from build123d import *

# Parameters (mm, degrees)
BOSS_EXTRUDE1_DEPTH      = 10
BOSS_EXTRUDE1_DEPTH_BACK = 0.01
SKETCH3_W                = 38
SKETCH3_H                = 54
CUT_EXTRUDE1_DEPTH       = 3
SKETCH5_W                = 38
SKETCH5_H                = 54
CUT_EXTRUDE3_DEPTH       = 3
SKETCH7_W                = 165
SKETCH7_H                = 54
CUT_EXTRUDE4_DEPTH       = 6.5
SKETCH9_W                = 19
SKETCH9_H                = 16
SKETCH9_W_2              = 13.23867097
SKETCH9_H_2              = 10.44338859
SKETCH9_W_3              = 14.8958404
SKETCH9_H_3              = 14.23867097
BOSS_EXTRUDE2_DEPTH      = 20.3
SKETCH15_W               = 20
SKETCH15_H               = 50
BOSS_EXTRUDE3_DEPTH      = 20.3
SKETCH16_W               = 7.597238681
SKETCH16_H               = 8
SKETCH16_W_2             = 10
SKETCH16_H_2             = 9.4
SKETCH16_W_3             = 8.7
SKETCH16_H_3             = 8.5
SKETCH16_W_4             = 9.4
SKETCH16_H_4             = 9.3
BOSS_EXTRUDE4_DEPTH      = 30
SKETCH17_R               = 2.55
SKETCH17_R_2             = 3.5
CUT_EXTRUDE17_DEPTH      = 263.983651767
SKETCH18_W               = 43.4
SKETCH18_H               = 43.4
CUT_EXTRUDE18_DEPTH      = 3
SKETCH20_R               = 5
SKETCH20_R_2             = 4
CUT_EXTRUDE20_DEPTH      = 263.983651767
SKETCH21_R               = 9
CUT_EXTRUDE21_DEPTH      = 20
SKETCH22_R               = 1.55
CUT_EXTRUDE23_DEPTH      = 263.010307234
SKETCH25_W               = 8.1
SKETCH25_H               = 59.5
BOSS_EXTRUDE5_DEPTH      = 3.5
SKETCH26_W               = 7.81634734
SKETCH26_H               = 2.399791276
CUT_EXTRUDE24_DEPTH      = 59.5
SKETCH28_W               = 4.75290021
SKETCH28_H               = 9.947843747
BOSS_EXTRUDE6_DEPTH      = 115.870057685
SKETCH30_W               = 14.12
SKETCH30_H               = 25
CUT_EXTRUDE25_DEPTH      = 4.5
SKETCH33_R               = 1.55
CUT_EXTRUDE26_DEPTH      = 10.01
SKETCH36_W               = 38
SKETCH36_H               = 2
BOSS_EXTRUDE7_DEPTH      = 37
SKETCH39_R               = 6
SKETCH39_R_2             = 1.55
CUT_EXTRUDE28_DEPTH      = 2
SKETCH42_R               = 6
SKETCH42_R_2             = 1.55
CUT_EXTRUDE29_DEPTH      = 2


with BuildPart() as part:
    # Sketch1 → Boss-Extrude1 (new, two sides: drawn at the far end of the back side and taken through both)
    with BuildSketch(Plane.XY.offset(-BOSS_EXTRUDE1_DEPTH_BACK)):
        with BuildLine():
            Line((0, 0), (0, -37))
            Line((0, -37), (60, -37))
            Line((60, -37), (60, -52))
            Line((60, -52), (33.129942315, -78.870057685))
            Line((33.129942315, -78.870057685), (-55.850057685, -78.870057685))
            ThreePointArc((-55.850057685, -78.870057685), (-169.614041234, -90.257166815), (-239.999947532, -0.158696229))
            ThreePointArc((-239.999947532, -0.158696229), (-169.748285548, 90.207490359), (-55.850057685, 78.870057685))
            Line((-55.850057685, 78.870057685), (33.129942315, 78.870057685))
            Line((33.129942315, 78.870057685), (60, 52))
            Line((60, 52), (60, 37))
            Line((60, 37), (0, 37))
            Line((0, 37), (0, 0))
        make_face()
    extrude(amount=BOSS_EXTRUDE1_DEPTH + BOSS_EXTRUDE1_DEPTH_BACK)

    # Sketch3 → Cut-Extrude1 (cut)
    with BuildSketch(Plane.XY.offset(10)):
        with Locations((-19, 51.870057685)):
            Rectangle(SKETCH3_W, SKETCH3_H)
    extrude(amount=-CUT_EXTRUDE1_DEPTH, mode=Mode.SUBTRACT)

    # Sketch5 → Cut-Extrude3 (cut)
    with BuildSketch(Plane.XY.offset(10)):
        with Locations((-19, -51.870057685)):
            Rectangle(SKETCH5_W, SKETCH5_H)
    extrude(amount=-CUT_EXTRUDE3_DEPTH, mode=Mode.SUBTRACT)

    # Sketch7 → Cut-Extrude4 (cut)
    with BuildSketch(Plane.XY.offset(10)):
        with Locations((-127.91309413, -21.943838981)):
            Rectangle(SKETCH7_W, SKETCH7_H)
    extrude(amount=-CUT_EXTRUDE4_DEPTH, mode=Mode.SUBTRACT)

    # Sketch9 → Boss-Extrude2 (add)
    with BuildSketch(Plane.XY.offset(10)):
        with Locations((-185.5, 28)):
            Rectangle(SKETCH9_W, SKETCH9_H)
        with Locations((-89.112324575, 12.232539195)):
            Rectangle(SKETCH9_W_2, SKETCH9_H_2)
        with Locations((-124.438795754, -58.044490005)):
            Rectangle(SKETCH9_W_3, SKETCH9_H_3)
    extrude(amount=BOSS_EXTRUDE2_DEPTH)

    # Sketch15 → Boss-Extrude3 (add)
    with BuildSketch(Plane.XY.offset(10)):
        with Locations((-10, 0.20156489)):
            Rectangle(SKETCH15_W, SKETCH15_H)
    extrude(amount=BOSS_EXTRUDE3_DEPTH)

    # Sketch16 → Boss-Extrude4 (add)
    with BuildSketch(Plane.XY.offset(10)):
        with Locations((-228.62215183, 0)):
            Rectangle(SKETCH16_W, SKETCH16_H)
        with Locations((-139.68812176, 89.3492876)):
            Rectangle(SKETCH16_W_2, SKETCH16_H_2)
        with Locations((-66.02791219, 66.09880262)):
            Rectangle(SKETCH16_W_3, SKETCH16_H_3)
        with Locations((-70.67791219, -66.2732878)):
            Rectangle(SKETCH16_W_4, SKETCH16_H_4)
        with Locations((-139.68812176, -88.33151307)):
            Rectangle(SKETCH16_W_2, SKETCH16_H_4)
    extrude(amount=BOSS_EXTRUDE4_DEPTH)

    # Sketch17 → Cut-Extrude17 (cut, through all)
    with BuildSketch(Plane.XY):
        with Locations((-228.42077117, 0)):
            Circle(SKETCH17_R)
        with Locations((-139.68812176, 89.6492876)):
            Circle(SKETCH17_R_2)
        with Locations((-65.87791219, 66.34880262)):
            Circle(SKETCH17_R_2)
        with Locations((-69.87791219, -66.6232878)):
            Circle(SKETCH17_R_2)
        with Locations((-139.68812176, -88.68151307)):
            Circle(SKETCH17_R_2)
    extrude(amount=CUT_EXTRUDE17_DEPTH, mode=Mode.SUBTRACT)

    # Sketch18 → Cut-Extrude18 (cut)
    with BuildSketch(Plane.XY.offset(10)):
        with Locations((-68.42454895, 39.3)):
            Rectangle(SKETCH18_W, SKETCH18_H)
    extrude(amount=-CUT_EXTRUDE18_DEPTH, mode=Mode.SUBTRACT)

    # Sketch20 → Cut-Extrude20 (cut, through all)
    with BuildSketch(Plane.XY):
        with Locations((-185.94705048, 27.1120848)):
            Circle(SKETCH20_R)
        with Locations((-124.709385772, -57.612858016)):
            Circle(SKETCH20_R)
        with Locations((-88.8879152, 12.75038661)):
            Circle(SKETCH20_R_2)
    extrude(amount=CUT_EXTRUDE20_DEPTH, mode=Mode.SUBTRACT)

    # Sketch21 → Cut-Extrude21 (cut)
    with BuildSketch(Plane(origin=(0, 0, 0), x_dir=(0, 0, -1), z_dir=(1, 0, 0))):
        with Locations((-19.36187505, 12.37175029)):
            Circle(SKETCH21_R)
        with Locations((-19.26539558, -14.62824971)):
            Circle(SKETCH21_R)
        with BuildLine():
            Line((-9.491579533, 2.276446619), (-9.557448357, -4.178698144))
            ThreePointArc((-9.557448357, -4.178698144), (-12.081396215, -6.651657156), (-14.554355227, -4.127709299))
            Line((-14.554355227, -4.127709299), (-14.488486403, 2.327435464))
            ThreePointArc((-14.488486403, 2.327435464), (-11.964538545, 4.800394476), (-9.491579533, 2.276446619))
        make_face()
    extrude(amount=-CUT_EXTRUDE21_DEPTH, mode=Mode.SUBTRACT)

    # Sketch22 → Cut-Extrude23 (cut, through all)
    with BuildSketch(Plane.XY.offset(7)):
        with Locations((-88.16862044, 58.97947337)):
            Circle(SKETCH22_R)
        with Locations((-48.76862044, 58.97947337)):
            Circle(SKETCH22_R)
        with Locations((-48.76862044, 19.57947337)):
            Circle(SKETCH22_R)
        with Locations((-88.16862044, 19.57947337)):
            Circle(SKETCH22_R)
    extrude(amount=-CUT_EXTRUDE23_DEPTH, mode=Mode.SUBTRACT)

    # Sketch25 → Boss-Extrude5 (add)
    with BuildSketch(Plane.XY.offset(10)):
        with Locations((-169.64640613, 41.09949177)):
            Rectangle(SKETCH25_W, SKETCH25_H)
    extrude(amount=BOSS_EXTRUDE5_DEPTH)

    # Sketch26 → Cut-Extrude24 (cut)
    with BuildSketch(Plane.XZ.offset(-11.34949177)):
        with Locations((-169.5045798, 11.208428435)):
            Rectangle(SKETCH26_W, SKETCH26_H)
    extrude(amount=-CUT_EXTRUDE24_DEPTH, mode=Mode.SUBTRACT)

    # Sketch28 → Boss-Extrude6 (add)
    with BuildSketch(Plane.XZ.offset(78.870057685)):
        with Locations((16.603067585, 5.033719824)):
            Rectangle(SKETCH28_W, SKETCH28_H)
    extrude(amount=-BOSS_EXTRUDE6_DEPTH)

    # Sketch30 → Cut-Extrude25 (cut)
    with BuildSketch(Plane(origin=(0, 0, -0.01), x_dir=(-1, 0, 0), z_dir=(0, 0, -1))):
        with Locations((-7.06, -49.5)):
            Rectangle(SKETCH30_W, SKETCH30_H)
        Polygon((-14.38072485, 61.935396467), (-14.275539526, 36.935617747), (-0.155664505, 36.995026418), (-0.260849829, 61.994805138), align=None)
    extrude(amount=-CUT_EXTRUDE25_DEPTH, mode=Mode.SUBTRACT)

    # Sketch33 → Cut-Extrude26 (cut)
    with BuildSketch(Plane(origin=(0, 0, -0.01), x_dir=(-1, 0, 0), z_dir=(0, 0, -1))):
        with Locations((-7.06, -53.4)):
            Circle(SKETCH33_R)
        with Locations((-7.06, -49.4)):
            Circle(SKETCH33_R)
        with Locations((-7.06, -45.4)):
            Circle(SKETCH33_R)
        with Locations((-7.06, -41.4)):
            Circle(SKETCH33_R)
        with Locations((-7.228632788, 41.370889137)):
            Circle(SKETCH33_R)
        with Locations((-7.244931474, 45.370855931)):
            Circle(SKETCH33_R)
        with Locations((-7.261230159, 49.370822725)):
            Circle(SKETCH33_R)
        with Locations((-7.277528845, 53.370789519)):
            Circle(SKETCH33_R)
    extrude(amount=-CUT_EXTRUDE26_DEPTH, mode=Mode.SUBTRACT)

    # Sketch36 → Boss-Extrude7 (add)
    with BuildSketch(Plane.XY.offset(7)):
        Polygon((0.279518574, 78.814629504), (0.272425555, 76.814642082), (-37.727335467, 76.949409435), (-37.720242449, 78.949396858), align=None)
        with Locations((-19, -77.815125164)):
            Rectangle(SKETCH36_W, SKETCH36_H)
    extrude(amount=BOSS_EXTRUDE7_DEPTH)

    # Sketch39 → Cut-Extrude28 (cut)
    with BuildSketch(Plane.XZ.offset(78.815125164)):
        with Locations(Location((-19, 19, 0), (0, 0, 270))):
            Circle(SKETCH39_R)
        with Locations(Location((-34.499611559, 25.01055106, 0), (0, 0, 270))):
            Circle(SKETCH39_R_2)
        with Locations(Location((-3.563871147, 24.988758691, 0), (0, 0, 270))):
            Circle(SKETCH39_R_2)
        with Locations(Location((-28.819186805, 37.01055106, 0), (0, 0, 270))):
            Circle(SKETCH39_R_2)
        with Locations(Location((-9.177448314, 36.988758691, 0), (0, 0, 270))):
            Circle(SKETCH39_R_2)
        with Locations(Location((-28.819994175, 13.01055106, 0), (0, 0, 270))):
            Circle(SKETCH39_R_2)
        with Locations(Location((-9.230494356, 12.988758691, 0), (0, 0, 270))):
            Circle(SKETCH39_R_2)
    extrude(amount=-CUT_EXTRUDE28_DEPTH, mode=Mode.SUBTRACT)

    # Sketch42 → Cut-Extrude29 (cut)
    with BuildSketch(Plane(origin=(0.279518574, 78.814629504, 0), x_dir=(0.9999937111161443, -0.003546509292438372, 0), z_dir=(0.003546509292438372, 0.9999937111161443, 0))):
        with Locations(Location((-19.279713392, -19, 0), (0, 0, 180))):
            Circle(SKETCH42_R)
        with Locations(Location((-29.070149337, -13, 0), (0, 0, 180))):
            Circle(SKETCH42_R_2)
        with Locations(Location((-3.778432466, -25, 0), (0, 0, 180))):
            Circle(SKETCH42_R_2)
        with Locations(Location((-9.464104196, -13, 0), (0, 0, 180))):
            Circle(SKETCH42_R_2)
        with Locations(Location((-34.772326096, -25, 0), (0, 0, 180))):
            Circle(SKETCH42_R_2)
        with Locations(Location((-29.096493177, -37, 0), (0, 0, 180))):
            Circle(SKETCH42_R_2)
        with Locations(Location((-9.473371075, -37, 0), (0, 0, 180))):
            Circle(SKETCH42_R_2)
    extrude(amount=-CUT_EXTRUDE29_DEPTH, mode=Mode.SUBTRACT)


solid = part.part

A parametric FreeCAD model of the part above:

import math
import FreeCAD as App
import Part
import Sketcher
from FreeCAD import Vector


def add_polygon(sketch, points):
    """Adds a closed chain of lines whose ends are joined by coincident constraints."""
    first, n = sketch.GeometryCount, len(points)
    for a, b in zip(points, points[1:] + points[:1]):
        sketch.addGeometry(Part.LineSegment(App.Vector(*a, 0), App.Vector(*b, 0)), False)
    for i in range(n):
        sketch.addConstraint(Sketcher.Constraint("Coincident", first + i, 2, first + (i + 1) % n, 1))

doc = App.newDocument("Part")
body = doc.addObject("PartDesign::Body", "Body")

sketch1 = body.newObject("Sketcher::SketchObject", "Sketch")
sketch1.AttachmentSupport = (doc.getObject("XY_Plane"), [""])
sketch1.MapMode = "FlatFace"
sketch1.addGeometry([
    Part.LineSegment(Vector(60, -37, 0), Vector(0, -37, 0)),
    Part.LineSegment(Vector(0, -37, 0), Vector(0, 37, 0)),
    Part.LineSegment(Vector(0, 37, 0), Vector(60, 37, 0)),
    Part.LineSegment(Vector(60, 37, 0), Vector(60, 52, 0)),
    Part.LineSegment(Vector(60, 52, 0), Vector(33, 79, 0)),
    Part.LineSegment(Vector(33, 79, 0), Vector(-56, 79, 0)),
    Part.ArcOfCircle(Part.Circle(Vector(-123, -19, 0), Vector(0, 0, 1), 118), math.radians(55), math.radians(171)),
    Part.ArcOfCircle(Part.Circle(Vector(-123, 19, 0), Vector(0, 0, 1), 118), math.radians(-171), math.radians(-55)),
    Part.LineSegment(Vector(-56, -79, 0), Vector(33, -79, 0)),
    Part.LineSegment(Vector(33, -79, 0), Vector(60, -52, 0)),
    Part.LineSegment(Vector(60, -52, 0), Vector(60, -37, 0)),
], False)
sketch1.addConstraint([
    Sketcher.Constraint("Coincident", 0, 2, 1, 1),
    Sketcher.Constraint("Coincident", 1, 2, 2, 1),
    Sketcher.Constraint("Coincident", 2, 2, 3, 1),
    Sketcher.Constraint("Coincident", 3, 2, 4, 1),
    Sketcher.Constraint("Coincident", 4, 2, 5, 1),
    Sketcher.Constraint("Coincident", 5, 2, 6, 1),
    Sketcher.Constraint("Coincident", 6, 2, 7, 1),
    Sketcher.Constraint("Coincident", 7, 2, 8, 1),
    Sketcher.Constraint("Coincident", 8, 2, 9, 1),
    Sketcher.Constraint("Coincident", 9, 2, 10, 1),
    Sketcher.Constraint("Coincident", 10, 2, 0, 1),
    Sketcher.Constraint("Horizontal", 0),
    Sketcher.Constraint("Vertical", 1),
    Sketcher.Constraint("Horizontal", 2),
    Sketcher.Constraint("Vertical", 3),
    Sketcher.Constraint("Horizontal", 5),
    Sketcher.Constraint("Horizontal", 8),
    Sketcher.Constraint("Vertical", 10),
    Sketcher.Constraint("Symmetric", 0, 2, 1, 2, -1, 1),
    Sketcher.Constraint("Symmetric", 5, 2, 7, 2, -1),
    Sketcher.Constraint("Symmetric", 3, 2, 9, 2, -1),
    Sketcher.Constraint("Perpendicular", 4, 9),
    Sketcher.Constraint("Vertical", 6, 3, 7, 3),
    Sketcher.Constraint("Vertical", 4, 2, 8, 2),
    Sketcher.Constraint("DistanceX", 0, 2, 0, 1, 60.0),
    Sketcher.Constraint("DistanceY", 1, 1, 1, 2, 74.0),
    Sketcher.Constraint("DistanceY", 3, 1, 3, 2, 15.0),
    Sketcher.Constraint("Distance", 4, 38.0),
    Sketcher.Constraint("DistanceX", 5, 2, 5, 1, 88.98),
    Sketcher.Constraint("Radius", 6, 118.378204),
    Sketcher.Constraint("Radius", 7, 118.439873),
    Sketcher.Constraint("DistanceX", 6, 2, 6, 3, 116.936702),
])
pad1 = body.newObject("PartDesign::Pad", "Pad")
pad1.Profile = sketch1
pad1.Type = "TwoLengths"
pad1.Length = 10
pad1.Length2 = 0.01

sketch2 = body.newObject("Sketcher::SketchObject", "Sketch001")
sketch2.AttachmentSupport = (doc.getObject("XY_Plane"), [""])
sketch2.MapMode = "FlatFace"
sketch2.AttachmentOffset = App.Placement(Vector(0, 0, 10), App.Rotation())
add_polygon(sketch2, [(-38, 79), (-38, 25), (0, 25), (0, 79)])
sketch2.addConstraint([
    Sketcher.Constraint("Vertical", 0),
    Sketcher.Constraint("Horizontal", 1),
    Sketcher.Constraint("Vertical", 2),
    Sketcher.Constraint("Horizontal", 3),
    Sketcher.Constraint("PointOnObject", 1, 2, -2),
    Sketcher.Constraint("DistanceX", 1, 1, 1, 2, 38.0),
    Sketcher.Constraint("DistanceY", 0, 2, 0, 1, 54.0),
    Sketcher.Constraint("DistanceY", -1, 1, 0, 2, 24.870058),
])
pocket1 = body.newObject("PartDesign::Pocket", "Pocket")
pocket1.Profile = sketch2
pocket1.Length = 3

sketch3 = body.newObject("Sketcher::SketchObject", "Sketch002")
sketch3.AttachmentSupport = (doc.getObject("XY_Plane"), [""])
sketch3.MapMode = "FlatFace"
sketch3.AttachmentOffset = App.Placement(Vector(0, 0, 10), App.Rotation())
add_polygon(sketch3, [(-38, -25), (-38, -79), (0, -79), (0, -25)])
sketch3.addConstraint([
    Sketcher.Constraint("Vertical", 0),
    Sketcher.Constraint("Horizontal", 1),
    Sketcher.Constraint("Vertical", 2),
    Sketcher.Constraint("Horizontal", 3),
    Sketcher.Constraint("PointOnObject", 1, 2, -2),
    Sketcher.Constraint("DistanceX", 1, 1, 1, 2, 38.0),
    Sketcher.Constraint("DistanceY", 0, 2, 0, 1, 54.0),
    Sketcher.Constraint("DistanceY", 0, 2, -1, 1, 78.870058),
])
pocket2 = body.newObject("PartDesign::Pocket", "Pocket001")
pocket2.Profile = sketch3
pocket2.Length = 3

sketch4 = body.newObject("Sketcher::SketchObject", "Sketch003")
sketch4.AttachmentSupport = (doc.getObject("XY_Plane"), [""])
sketch4.MapMode = "FlatFace"
sketch4.AttachmentOffset = App.Placement(Vector(0, 0, 10), App.Rotation())
add_polygon(sketch4, [(-210, 5), (-210, -49), (-45, -49), (-45, 5)])
sketch4.addConstraint([
    Sketcher.Constraint("Vertical", 0),
    Sketcher.Constraint("Horizontal", 1),
    Sketcher.Constraint("Vertical", 2),
    Sketcher.Constraint("Horizontal", 3),
    Sketcher.Constraint("DistanceX", 1, 1, 1, 2, 165.0),
    Sketcher.Constraint("DistanceY", 0, 2, 0, 1, 54.0),
    Sketcher.Constraint("DistanceY", 0, 2, -1, 1, 48.943839),
    Sketcher.Constraint("DistanceX", 0, 2, -1, 1, 210.413094),
])
pocket3 = body.newObject("PartDesign::Pocket", "Pocket002")
pocket3.Profile = sketch4
pocket3.Length = 6.5

sketch5 = body.newObject("Sketcher::SketchObject", "Sketch004")
sketch5.AttachmentSupport = (doc.getObject("XY_Plane"), [""])
sketch5.MapMode = "FlatFace"
sketch5.AttachmentOffset = App.Placement(Vector(0, 0, 10), App.Rotation())
add_polygon(sketch5, [(-195, 36), (-195, 20), (-176, 20), (-176, 36)])
add_polygon(sketch5, [(-96, 17), (-96, 7), (-82, 7), (-82, 17)])
add_polygon(sketch5, [(-132, -51), (-132, -65), (-117, -65), (-117, -51)])
sketch5.addConstraint([
    Sketcher.Constraint("Vertical", 0),
    Sketcher.Constraint("Horizontal", 1),
    Sketcher.Constraint("Vertical", 2),
    Sketcher.Constraint("Horizontal", 3),
    Sketcher.Constraint("Vertical", 4),
    Sketcher.Constraint("Horizontal", 5),
    Sketcher.Constraint("Vertical", 6),
    Sketcher.Constraint("Horizontal", 7),
    Sketcher.Constraint("Vertical", 8),
    Sketcher.Constraint("Horizontal", 9),
    Sketcher.Constraint("Vertical", 10),
    Sketcher.Constraint("Horizontal", 11),
    Sketcher.Constraint("DistanceX", 1, 1, 1, 2, 19.0),
    Sketcher.Constraint("DistanceY", 0, 2, 0, 1, 16.0),
    Sketcher.Constraint("DistanceX", 0, 2, -1, 1, 195.0),
    Sketcher.Constraint("DistanceY", -1, 1, 0, 2, 20.0),
    Sketcher.Constraint("DistanceY", 10, 2, 4, 2, 57.935999),
    Sketcher.Constraint("DistanceX", 5, 1, 5, 2, 13.238671),
    Sketcher.Constraint("DistanceX", 9, 1, 9, 2, 14.89584),
    Sketcher.Constraint("DistanceY", 4, 2, 4, 1, 10.443389),
    Sketcher.Constraint("DistanceY", 8, 2, 8, 1, 14.238671),
    Sketcher.Constraint("DistanceX", 4, 2, -1, 1, 95.73166),
    Sketcher.Constraint("DistanceY", -1, 1, 4, 2, 7.010845),
    Sketcher.Constraint("DistanceX", 8, 2, -1, 1, 131.886716),
])
pad2 = body.newObject("PartDesign::Pad", "Pad001")
pad2.Profile = sketch5
pad2.Length = 20.3

sketch6 = body.newObject("Sketcher::SketchObject", "Sketch005")
sketch6.AttachmentSupport = (doc.getObject("XY_Plane"), [""])
sketch6.MapMode = "FlatFace"
sketch6.AttachmentOffset = App.Placement(Vector(0, 0, 10), App.Rotation())
add_polygon(sketch6, [(-20, 25), (-20, -25), (0, -25), (0, 25)])
sketch6.addConstraint([
    Sketcher.Constraint("Vertical", 0),
    Sketcher.Constraint("Horizontal", 1),
    Sketcher.Constraint("Vertical", 2),
    Sketcher.Constraint("Horizontal", 3),
    Sketcher.Constraint("PointOnObject", 1, 2, -2),
    Sketcher.Constraint("DistanceX", 1, 1, 1, 2, 20.0),
    Sketcher.Constraint("DistanceY", 0, 2, 0, 1, 50.0),
    Sketcher.Constraint("DistanceY", 0, 2, -1, 1, 24.798435),
])
pad3 = body.newObject("PartDesign::Pad", "Pad002")
pad3.Profile = sketch6
pad3.Length = 20.3

sketch7 = body.newObject("Sketcher::SketchObject", "Sketch006")
sketch7.AttachmentSupport = (doc.getObject("XY_Plane"), [""])
sketch7.MapMode = "FlatFace"
sketch7.AttachmentOffset = App.Placement(Vector(0, 0, 10), App.Rotation())
add_polygon(sketch7, [(-232, 4), (-232, -4), (-225, -4), (-225, 4)])
add_polygon(sketch7, [(-145, 94), (-145, 85), (-135, 85), (-135, 94)])
add_polygon(sketch7, [(-70, 70), (-70, 62), (-62, 62), (-62, 70)])
add_polygon(sketch7, [(-75, -62), (-75, -71), (-66, -71), (-66, -62)])
add_polygon(sketch7, [(-145, -84), (-145, -93), (-135, -93), (-135, -84)])
sketch7.addConstraint([
    Sketcher.Constraint("Vertical", 0),
    Sketcher.Constraint("Horizontal", 1),
    Sketcher.Constraint("Vertical", 2),
    Sketcher.Constraint("Horizontal", 3),
    Sketcher.Constraint("Vertical", 4),
    Sketcher.Constraint("Horizontal", 5),
    Sketcher.Constraint("Vertical", 6),
    Sketcher.Constraint("Horizontal", 7),
    Sketcher.Constraint("Vertical", 8),
    Sketcher.Constraint("Horizontal", 9),
    Sketcher.Constraint("Vertical", 10),
    Sketcher.Constraint("Horizontal", 11),
    Sketcher.Constraint("Vertical", 12),
    Sketcher.Constraint("Horizontal", 13),
    Sketcher.Constraint("Vertical", 14),
    Sketcher.Constraint("Horizontal", 15),
    Sketcher.Constraint("Vertical", 16),
    Sketcher.Constraint("Horizontal", 17),
    Sketcher.Constraint("Vertical", 18),
    Sketcher.Constraint("Horizontal", 19),
    Sketcher.Constraint("Vertical", 7, 2, 16, 2),
    Sketcher.Constraint("Vertical", 6, 2, 17, 2),
    Sketcher.Constraint("Equal", 15, 4),
    Sketcher.Constraint("Equal", 14, 16),
    Sketcher.Constraint("DistanceX", 5, 1, 5, 2, 10.0),
    Sketcher.Constraint("DistanceY", 0, 2, 0, 1, 8.0),
    Sketcher.Constraint("DistanceX", 9, 1, 9, 2, 8.7),
    Sketcher.Constraint("DistanceX", 13, 1, 13, 2, 9.4),
    Sketcher.Constraint("DistanceY", 8, 2, 8, 1, 8.5),
    Sketcher.Constraint("DistanceY", 12, 2, 12, 1, 9.3),
    Sketcher.Constraint("DistanceY", 0, 2, -1, 1, 4.0),
    Sketcher.Constraint("DistanceX", 12, 2, 8, 2, 5.0),
    Sketcher.Constraint("DistanceX", 1, 1, 1, 2, 7.597239),
    Sketcher.Constraint("DistanceX", 0, 2, -1, 1, 232.420771),
    Sketcher.Constraint("DistanceX", 4, 2, -1, 1, 144.688122),
    Sketcher.Constraint("DistanceX", 5, 2, 8, 2, 64.31021),
    Sketcher.Constraint("DistanceY", 12, 2, 8, 2, 132.77209),
    Sketcher.Constraint("DistanceY", -1, 1, 4, 2, 84.649288),
    Sketcher.Constraint("DistanceY", -1, 1, 8, 2, 61.848803),
    Sketcher.Constraint("DistanceY", 16, 2, -1, 1, 92.981513),
])
pad4 = body.newObject("PartDesign::Pad", "Pad003")
pad4.Profile = sketch7
pad4.Length = 30

sketch8 = body.newObject("Sketcher::SketchObject", "Sketch007")
sketch8.AttachmentSupport = (doc.getObject("XY_Plane"), [""])
sketch8.MapMode = "FlatFace"
sketch8.addGeometry([
    Part.Circle(Vector(-228.4, 0, 0), Vector(0, 0, 1), 2.5),
    Part.Circle(Vector(-139.7, 89.6, 0), Vector(0, 0, 1), 3.5),
    Part.Circle(Vector(-65.9, 66.3, 0), Vector(0, 0, 1), 3.5),
    Part.Circle(Vector(-69.9, -66.6, 0), Vector(0, 0, 1), 3.5),
    Part.Circle(Vector(-139.7, -88.7, 0), Vector(0, 0, 1), 3.5),
], False)
sketch8.addConstraint([
    Sketcher.Constraint("Equal", 1, 2),
    Sketcher.Constraint("Equal", 2, 3),
    Sketcher.Constraint("Equal", 3, 4),
    Sketcher.Constraint("PointOnObject", 0, 3, -1),
    Sketcher.Constraint("Vertical", 1, 3, 4, 3),
    Sketcher.Constraint("Diameter", 1, 7.0),
    Sketcher.Constraint("Diameter", 0, 5.1),
    Sketcher.Constraint("DistanceX", 3, 3, 2, 3, 4.0),
    Sketcher.Constraint("DistanceY", 4, 3, 1, 3, 178.330801),
    Sketcher.Constraint("DistanceX", 0, 3, -1, 1, 228.420771),
    Sketcher.Constraint("DistanceX", 1, 3, -1, 1, 139.688122),
    Sketcher.Constraint("DistanceX", 1, 3, 2, 3, 73.81021),
    Sketcher.Constraint("DistanceY", 3, 3, 2, 3, 132.97209),
    Sketcher.Constraint("DistanceY", -1, 1, 1, 3, 89.649288),
    Sketcher.Constraint("DistanceY", -1, 1, 2, 3, 66.348803),
])
pocket4 = body.newObject("PartDesign::Pocket", "Pocket003")
pocket4.Profile = sketch8
pocket4.Type = "ThroughAll"
pocket4.Reversed = True

sketch9 = body.newObject("Sketcher::SketchObject", "Sketch008")
sketch9.AttachmentSupport = (doc.getObject("XY_Plane"), [""])
sketch9.MapMode = "FlatFace"
sketch9.AttachmentOffset = App.Placement(Vector(0, 0, 10), App.Rotation())
add_polygon(sketch9, [(-90, 61), (-90, 18), (-47, 18), (-47, 61)])
sketch9.addConstraint([
    Sketcher.Constraint("Vertical", 0),
    Sketcher.Constraint("Horizontal", 1),
    Sketcher.Constraint("Vertical", 2),
    Sketcher.Constraint("Horizontal", 3),
    Sketcher.Constraint("Equal", 3, 0),
    Sketcher.Constraint("DistanceX", 1, 1, 1, 2, 43.4),
    Sketcher.Constraint("DistanceY", -1, 1, 2, 2, 61.0),
    Sketcher.Constraint("DistanceX", 0, 2, -1, 1, 90.124549),
])
pocket5 = body.newObject("PartDesign::Pocket", "Pocket004")
pocket5.Profile = sketch9
pocket5.Length = 3

sketch10 = body.newObject("Sketcher::SketchObject", "Sketch009")
sketch10.AttachmentSupport = (doc.getObject("XY_Plane"), [""])
sketch10.MapMode = "FlatFace"
sketch10.addGeometry([
    Part.Circle(Vector(-185.9, 27.1, 0), Vector(0, 0, 1), 5),
    Part.Circle(Vector(-124.7, -57.6, 0), Vector(0, 0, 1), 5),
    Part.Circle(Vector(-88.9, 12.8, 0), Vector(0, 0, 1), 4),
], False)
sketch10.addConstraint([
    Sketcher.Constraint("Equal", 0, 1),
    Sketcher.Constraint("Diameter", 0, 10.0),
    Sketcher.Constraint("Diameter", 2, 8.0),
    Sketcher.Constraint("DistanceY", 2, 3, 0, 3, 14.361698),
    Sketcher.Constraint("DistanceX", 0, 3, -1, 1, 185.94705),
    Sketcher.Constraint("DistanceY", 1, 3, -1, 1, 57.612858),
    Sketcher.Constraint("DistanceX", 1, 3, 2, 3, 35.821471),
    Sketcher.Constraint("DistanceY", -1, 1, 0, 3, 27.112085),
    Sketcher.Constraint("DistanceX", 1, 3, -1, 1, 124.709386),
])
pocket6 = body.newObject("PartDesign::Pocket", "Pocket005")
pocket6.Profile = sketch10
pocket6.Type = "ThroughAll"
pocket6.Reversed = True

sketch11 = body.newObject("Sketcher::SketchObject", "Sketch010")
sketch11.AttachmentSupport = (doc.getObject("YZ_Plane"), [""])
sketch11.MapMode = "FlatFace"
sketch11.addGeometry([
    Part.Circle(Vector(12.4, 19.4, 0), Vector(0, 0, 1), 9),
    Part.Circle(Vector(-14.6, 19.3, 0), Vector(0, 0, 1), 9),
    Part.LineSegment(Vector(-4.2, 9.6, 0), Vector(2.3, 9.5, 0)),
    Part.ArcOfCircle(Part.Circle(Vector(2.3, 12, 0), Vector(0, 0, 1), 2.5), math.radians(-91), math.radians(89)),
    Part.LineSegment(Vector(2.3, 14.5, 0), Vector(-4.1, 14.6, 0)),
    Part.ArcOfCircle(Part.Circle(Vector(-4.2, 12.1, 0), Vector(0, 0, 1), 2.5), math.radians(89), math.radians(269)),
], False)
sketch11.addConstraint([
    Sketcher.Constraint("Tangent", 2, 2, 3, 1),
    Sketcher.Constraint("Tangent", 3, 2, 4, 1),
    Sketcher.Constraint("Tangent", 4, 2, 5, 1),
    Sketcher.Constraint("Tangent", 5, 2, 2, 1),
    Sketcher.Constraint("Equal", 0, 1),
    Sketcher.Constraint("Equal", 3, 5),
    Sketcher.Constraint("Diameter", 0, 18.0),
    Sketcher.Constraint("DistanceX", 1, 3, 0, 3, 27.0),
    Sketcher.Constraint("Radius", 3, 2.498584),
    Sketcher.Constraint("DistanceY", -1, 1, 5, 3, 12.055902),
    Sketcher.Constraint("DistanceX", 5, 2, -1, 1, 4.178698),
    Sketcher.Constraint("Distance", 2, 6.455481),
    Sketcher.Constraint("DistanceX", -1, 1, 0, 3, 12.37175),
    Sketcher.Constraint("DistanceX", -1, 1, 3, 3, 2.301941),
    Sketcher.Constraint("DistanceY", 1, 3, 0, 3, 0.096479),
    Sketcher.Constraint("DistanceY", 3, 2, 0, 3, 4.873389),
])
pocket7 = body.newObject("PartDesign::Pocket", "Pocket006")
pocket7.Profile = sketch11
pocket7.Length = 20

sketch12 = body.newObject("Sketcher::SketchObject", "Sketch011")
sketch12.AttachmentSupport = (doc.getObject("XY_Plane"), [""])
sketch12.MapMode = "FlatFace"
sketch12.AttachmentOffset = App.Placement(Vector(0, 0, 7), App.Rotation())
sketch12.addGeometry([
    Part.Circle(Vector(-88.2, 59, 0), Vector(0, 0, 1), 1.6),
    Part.Circle(Vector(-48.8, 59, 0), Vector(0, 0, 1), 1.6),
    Part.Circle(Vector(-48.8, 19.6, 0), Vector(0, 0, 1), 1.6),
    Part.Circle(Vector(-88.2, 19.6, 0), Vector(0, 0, 1), 1.6),
], False)
sketch12.addConstraint([
    Sketcher.Constraint("Equal", 0, 1),
    Sketcher.Constraint("Equal", 1, 2),
    Sketcher.Constraint("Equal", 2, 3),
    Sketcher.Constraint("Horizontal", 0, 3, 1, 3),
    Sketcher.Constraint("Horizontal", 2, 3, 3, 3),
    Sketcher.Constraint("Vertical", 1, 3, 2, 3),
    Sketcher.Constraint("Vertical", 0, 3, 3, 3),
    Sketcher.Constraint("Diameter", 0, 3.1),
    Sketcher.Constraint("DistanceX", 0, 3, 1, 3, 39.4),
    Sketcher.Constraint("DistanceY", 2, 3, 1, 3, 39.4),
    Sketcher.Constraint("DistanceX", 0, 3, -1, 1, 88.16862),
    Sketcher.Constraint("DistanceY", -1, 1, 0, 3, 58.979473),
])
pocket8 = body.newObject("PartDesign::Pocket", "Pocket007")
pocket8.Profile = sketch12
pocket8.Type = "ThroughAll"

sketch13 = body.newObject("Sketcher::SketchObject", "Sketch012")
sketch13.AttachmentSupport = (doc.getObject("XY_Plane"), [""])
sketch13.MapMode = "FlatFace"
sketch13.AttachmentOffset = App.Placement(Vector(0, 0, 10), App.Rotation())
add_polygon(sketch13, [(-174, 71), (-174, 11), (-166, 11), (-166, 71)])
sketch13.addConstraint([
    Sketcher.Constraint("Vertical", 0),
    Sketcher.Constraint("Horizontal", 1),
    Sketcher.Constraint("Vertical", 2),
    Sketcher.Constraint("Horizontal", 3),
    Sketcher.Constraint("DistanceX", 1, 1, 1, 2, 8.1),
    Sketcher.Constraint("DistanceY", 0, 2, 0, 1, 59.5),
    Sketcher.Constraint("DistanceY", -1, 1, 0, 2, 11.349492),
    Sketcher.Constraint("DistanceX", 0, 2, -1, 1, 173.696406),
])
pad5 = body.newObject("PartDesign::Pad", "Pad004")
pad5.Profile = sketch13
pad5.Length = 3.5

sketch14 = body.newObject("Sketcher::SketchObject", "Sketch013")
sketch14.AttachmentSupport = (doc.getObject("XZ_Plane"), [""])
sketch14.MapMode = "FlatFace"
sketch14.AttachmentOffset = App.Placement(Vector(0, 0, -11.349492), App.Rotation())
add_polygon(sketch14, [(-173.4, 12.4), (-173.4, 10), (-165.6, 10), (-165.6, 12.4)])
sketch14.addConstraint([
    Sketcher.Constraint("Vertical", 0),
    Sketcher.Constraint("Horizontal", 1),
    Sketcher.Constraint("Vertical", 2),
    Sketcher.Constraint("Horizontal", 3),
    Sketcher.Constraint("DistanceY", 0, 2, 0, 1, 2.399791),
    Sketcher.Constraint("DistanceX", 1, 1, 1, 2, 7.816347),
    Sketcher.Constraint("DistanceX", 0, 2, -1, 1, 173.412753),
    Sketcher.Constraint("DistanceY", -1, 1, 0, 2, 10.008533),
])
pocket9 = body.newObject("PartDesign::Pocket", "Pocket008")
pocket9.Profile = sketch14
pocket9.Length = 59.5

sketch15 = body.newObject("Sketcher::SketchObject", "Sketch014")
sketch15.AttachmentSupport = (doc.getObject("XZ_Plane"), [""])
sketch15.MapMode = "FlatFace"
sketch15.AttachmentOffset = App.Placement(Vector(0, 0, 78.870058), App.Rotation())
add_polygon(sketch15, [(14.2, 10), (14.2, 0.1), (19, 0.1), (19, 10)])
sketch15.addConstraint([
    Sketcher.Constraint("Vertical", 0),
    Sketcher.Constraint("Horizontal", 1),
    Sketcher.Constraint("Vertical", 2),
    Sketcher.Constraint("Horizontal", 3),
    Sketcher.Constraint("DistanceX", 1, 1, 1, 2, 4.7529),
    Sketcher.Constraint("DistanceY", 0, 2, 0, 1, 9.947844),
    Sketcher.Constraint("DistanceY", -1, 1, 2, 2, 10.007642),
    Sketcher.Constraint("DistanceX", -1, 1, 0, 2, 14.226617),
])
pad6 = body.newObject("PartDesign::Pad", "Pad005")
pad6.Profile = sketch15
pad6.Length = 115.870058
pad6.Reversed = True

sketch16 = body.newObject("Sketcher::SketchObject", "Sketch015")
sketch16.AttachmentSupport = (doc.getObject("XY_Plane"), [""])
sketch16.MapMode = "FlatFace"
sketch16.AttachmentOffset = App.Placement(Vector(0, 0, -0.01), App.Rotation())
add_polygon(sketch16, [(14, -37), (14, -62), (0, -62), (0, -37)])
add_polygon(sketch16, [(14, 62), (14, 37), (0, 37), (0, 62)])
sketch16.addConstraint([
    Sketcher.Constraint("Vertical", 0),
    Sketcher.Constraint("Horizontal", 1),
    Sketcher.Constraint("Vertical", 2),
    Sketcher.Constraint("Horizontal", 3),
    Sketcher.Constraint("PointOnObject", 1, 2, -2),
    Sketcher.Constraint("Perpendicular", 4, 5),
    Sketcher.Constraint("Perpendicular", 5, 6),
    Sketcher.Constraint("Perpendicular", 6, 7),
    Sketcher.Constraint("DistanceY", 0, 2, 0, 1, 25.0),
    Sketcher.Constraint("Distance", 4, 25.0),
    Sketcher.Constraint("DistanceY", 0, 2, -1, 1, 62.0),
    Sketcher.Constraint("DistanceX", 1, 2, 1, 1, 14.12),
    Sketcher.Constraint("Distance", 5, 14.12),
    Sketcher.Constraint("DistanceX", -1, 1, 4, 2, 14.27554),
    Sketcher.Constraint("DistanceX", -1, 1, 6, 2, 0.26085),
    Sketcher.Constraint("DistanceY", -1, 1, 4, 2, 36.935618),
])
pocket10 = body.newObject("PartDesign::Pocket", "Pocket009")
pocket10.Profile = sketch16
pocket10.Length = 4.5
pocket10.Reversed = True

sketch17 = body.newObject("Sketcher::SketchObject", "Sketch016")
sketch17.AttachmentSupport = (doc.getObject("XY_Plane"), [""])
sketch17.MapMode = "FlatFace"
sketch17.AttachmentOffset = App.Placement(Vector(0, 0, -0.01), App.Rotation())
sketch17.addGeometry([
    Part.Circle(Vector(7.1, -53.4, 0), Vector(0, 0, 1), 1.6),
    Part.Circle(Vector(7.1, -49.4, 0), Vector(0, 0, 1), 1.6),
    Part.Circle(Vector(7.1, -45.4, 0), Vector(0, 0, 1), 1.6),
    Part.Circle(Vector(7.1, -41.4, 0), Vector(0, 0, 1), 1.6),
    Part.Circle(Vector(7.2, 41.4, 0), Vector(0, 0, 1), 1.6),
    Part.Circle(Vector(7.2, 45.4, 0), Vector(0, 0, 1), 1.6),
    Part.Circle(Vector(7.3, 49.4, 0), Vector(0, 0, 1), 1.6),
    Part.Circle(Vector(7.3, 53.4, 0), Vector(0, 0, 1), 1.6),
], False)
sketch17.addConstraint([
    Sketcher.Constraint("Equal", 0, 1),
    Sketcher.Constraint("Equal", 1, 2),
    Sketcher.Constraint("Equal", 2, 3),
    Sketcher.Constraint("Equal", 3, 4),
    Sketcher.Constraint("Equal", 4, 5),
    Sketcher.Constraint("Equal", 5, 6),
    Sketcher.Constraint("Equal", 6, 7),
    Sketcher.Constraint("Vertical", 0, 3, 1, 3),
    Sketcher.Constraint("Vertical", 1, 3, 2, 3),
    Sketcher.Constraint("Vertical", 2, 3, 3, 3),
    Sketcher.Constraint("Diameter", 0, 3.1),
    Sketcher.Constraint("DistanceY", 0, 3, 1, 3, 4.0),
    Sketcher.Constraint("DistanceY", 1, 3, 2, 3, 4.0),
    Sketcher.Constraint("DistanceY", 2, 3, 3, 3, 4.0),
    Sketcher.Constraint("DistanceY", 0, 3, -1, 1, 53.4),
    Sketcher.Constraint("DistanceX", -1, 1, 0, 3, 7.06),
    Sketcher.Constraint("DistanceX", 4, 3, 5, 3, 0.016299),
    Sketcher.Constraint("DistanceX", 5, 3, 6, 3, 0.016299),
    Sketcher.Constraint("DistanceX", 6, 3, 7, 3, 0.016299),
    Sketcher.Constraint("DistanceY", 4, 3, 7, 3, 11.9999),
    Sketcher.Constraint("DistanceY", -1, 1, 4, 3, 41.370889),
    Sketcher.Constraint("DistanceX", -1, 1, 5, 3, 7.244931),
    Sketcher.Constraint("DistanceY", -1, 1, 5, 3, 45.370856),
    Sketcher.Constraint("DistanceY", -1, 1, 6, 3, 49.370823),
])
pocket11 = body.newObject("PartDesign::Pocket", "Pocket010")
pocket11.Profile = sketch17
pocket11.Length = 10.01
pocket11.Reversed = True

sketch18 = body.newObject("Sketcher::SketchObject", "Sketch017")
sketch18.AttachmentSupport = (doc.getObject("XY_Plane"), [""])
sketch18.MapMode = "FlatFace"
sketch18.AttachmentOffset = App.Placement(Vector(0, 0, 7), App.Rotation())
add_polygon(sketch18, [(0.3, 76.8), (0.3, 78.8), (-37.7, 78.9), (-37.7, 76.9)])
add_polygon(sketch18, [(-38, -76.8), (-38, -78.8), (0, -78.8), (0, -76.8)])
sketch18.addConstraint([
    Sketcher.Constraint("Vertical", 4),
    Sketcher.Constraint("Horizontal", 5),
    Sketcher.Constraint("Vertical", 6),
    Sketcher.Constraint("Horizontal", 7),
    Sketcher.Constraint("PointOnObject", 5, 2, -2),
    Sketcher.Constraint("Perpendicular", 0, 1),
    Sketcher.Constraint("Perpendicular", 1, 2),
    Sketcher.Constraint("Perpendicular", 2, 3),
    Sketcher.Constraint("DistanceX", 5, 1, 5, 2, 38.0),
    Sketcher.Constraint("DistanceY", 4, 2, 4, 1, 2.0),
    Sketcher.Constraint("Distance", 0, 2.0),
    Sketcher.Constraint("Distance", 1, 38.0),
    Sketcher.Constraint("DistanceX", -1, 1, 0, 2, 0.279519),
    Sketcher.Constraint("DistanceY", -1, 1, 0, 2, 78.81463),
    Sketcher.Constraint("DistanceY", -1, 1, 2, 2, 76.949409),
    Sketcher.Constraint("DistanceY", 4, 2, -1, 1, 78.815125),
])
pad7 = body.newObject("PartDesign::Pad", "Pad006")
pad7.Profile = sketch18
pad7.Length = 37

sketch19 = body.newObject("Sketcher::SketchObject", "Sketch018")
sketch19.AttachmentSupport = (doc.getObject("XZ_Plane"), [""])
sketch19.MapMode = "FlatFace"
sketch19.AttachmentOffset = App.Placement(Vector(0, 0, 78.815125), App.Rotation())
sketch19.addGeometry([
    Part.Circle(Vector(-19, 19, 0), Vector(0, 0, 1), 6),
    Part.Circle(Vector(-34.5, 25, 0), Vector(0, 0, 1), 1.6),
    Part.Circle(Vector(-3.6, 25, 0), Vector(0, 0, 1), 1.6),
    Part.Circle(Vector(-28.8, 37, 0), Vector(0, 0, 1), 1.6),
    Part.Circle(Vector(-9.2, 37, 0), Vector(0, 0, 1), 1.6),
    Part.Circle(Vector(-28.8, 13, 0), Vector(0, 0, 1), 1.6),
    Part.Circle(Vector(-9.2, 13, 0), Vector(0, 0, 1), 1.6),
], False)
sketch19.addConstraint([
    Sketcher.Constraint("Equal", 1, 2),
    Sketcher.Constraint("Equal", 2, 3),
    Sketcher.Constraint("Equal", 3, 4),
    Sketcher.Constraint("Equal", 4, 5),
    Sketcher.Constraint("Equal", 5, 6),
    Sketcher.Constraint("Diameter", 0, 12.0),
    Sketcher.Constraint("Diameter", 1, 3.1),
    Sketcher.Constraint("DistanceX", 0, 3, -1, 1, 19.0),
    Sketcher.Constraint("DistanceY", -1, 1, 0, 3, 19.0),
    Sketcher.Constraint("DistanceY", 1, 3, 3, 3, 12.0),
    Sketcher.Constraint("DistanceY", 2, 3, 4, 3, 12.0),
    Sketcher.Constraint("DistanceY", 5, 3, 1, 3, 12.0),
    Sketcher.Constraint("DistanceY", 6, 3, 2, 3, 12.0),
    Sketcher.Constraint("DistanceX", 5, 3, 6, 3, 19.5895),
    Sketcher.Constraint("DistanceX", 1, 3, -1, 1, 34.499612),
    Sketcher.Constraint("DistanceY", -1, 1, 1, 3, 25.010551),
    Sketcher.Constraint("DistanceX", 2, 3, -1, 1, 3.563871),
    Sketcher.Constraint("DistanceY", -1, 1, 2, 3, 24.988759),
    Sketcher.Constraint("DistanceX", 4, 3, -1, 1, 9.177448),
    Sketcher.Constraint("DistanceX", 3, 3, 4, 3, 19.641738),
    Sketcher.Constraint("DistanceX", 5, 3, -1, 1, 28.819994),
])
pocket12 = body.newObject("PartDesign::Pocket", "Pocket011")
pocket12.Profile = sketch19
pocket12.Length = 2

sketch20 = body.newObject("Sketcher::SketchObject", "Sketch019")
sketch20.Placement = App.Placement(Vector(0.279519, 78.81463, 0), App.Rotation(Vector(0.999993711, -0.003546509, 0), Vector(0, 0, -1), Vector(0.003546509, 0.999993711, 0), "ZXY"))
sketch20.addGeometry([
    Part.Circle(Vector(-19.3, -19, 0), Vector(0, 0, 1), 6),
    Part.Circle(Vector(-29.1, -13, 0), Vector(0, 0, 1), 1.6),
    Part.Circle(Vector(-3.8, -25, 0), Vector(0, 0, 1), 1.6),
    Part.Circle(Vector(-9.5, -13, 0), Vector(0, 0, 1), 1.6),
    Part.Circle(Vector(-34.8, -25, 0), Vector(0, 0, 1), 1.6),
    Part.Circle(Vector(-29.1, -37, 0), Vector(0, 0, 1), 1.6),
    Part.Circle(Vector(-9.5, -37, 0), Vector(0, 0, 1), 1.6),
], False)
sketch20.addConstraint([
    Sketcher.Constraint("Equal", 1, 2),
    Sketcher.Constraint("Equal", 2, 3),
    Sketcher.Constraint("Equal", 3, 4),
    Sketcher.Constraint("Equal", 4, 5),
    Sketcher.Constraint("Equal", 5, 6),
    Sketcher.Constraint("Horizontal", 1, 3, 3, 3),
    Sketcher.Constraint("Horizontal", 2, 3, 4, 3),
    Sketcher.Constraint("Horizontal", 5, 3, 6, 3),
    Sketcher.Constraint("Diameter", 0, 12.0),
    Sketcher.Constraint("Diameter", 1, 3.1),
    Sketcher.Constraint("DistanceY", 0, 3, -1, 1, 19.0),
    Sketcher.Constraint("DistanceY", 1, 3, -1, 1, 13.0),
    Sketcher.Constraint("DistanceY", 2, 3, -1, 1, 25.0),
    Sketcher.Constraint("DistanceY", 5, 3, -1, 1, 37.0),
    Sketcher.Constraint("DistanceX", 1, 3, -1, 1, 29.070149),
    Sketcher.Constraint("DistanceX", 6, 3, -1, 1, 9.473371),
    Sketcher.Constraint("DistanceX", 0, 3, 2, 3, 15.501281),
    Sketcher.Constraint("DistanceX", 0, 3, 3, 3, 9.815609),
    Sketcher.Constraint("DistanceX", 4, 3, 3, 3, 25.308222),
    Sketcher.Constraint("DistanceX", 5, 3, 0, 3, 9.81678),
    Sketcher.Constraint("DistanceX", 6, 3, 2, 3, 5.694939),
])
pocket13 = body.newObject("PartDesign::Pocket", "Pocket012")
pocket13.Profile = sketch20
pocket13.Length = 2

doc.recompute()
